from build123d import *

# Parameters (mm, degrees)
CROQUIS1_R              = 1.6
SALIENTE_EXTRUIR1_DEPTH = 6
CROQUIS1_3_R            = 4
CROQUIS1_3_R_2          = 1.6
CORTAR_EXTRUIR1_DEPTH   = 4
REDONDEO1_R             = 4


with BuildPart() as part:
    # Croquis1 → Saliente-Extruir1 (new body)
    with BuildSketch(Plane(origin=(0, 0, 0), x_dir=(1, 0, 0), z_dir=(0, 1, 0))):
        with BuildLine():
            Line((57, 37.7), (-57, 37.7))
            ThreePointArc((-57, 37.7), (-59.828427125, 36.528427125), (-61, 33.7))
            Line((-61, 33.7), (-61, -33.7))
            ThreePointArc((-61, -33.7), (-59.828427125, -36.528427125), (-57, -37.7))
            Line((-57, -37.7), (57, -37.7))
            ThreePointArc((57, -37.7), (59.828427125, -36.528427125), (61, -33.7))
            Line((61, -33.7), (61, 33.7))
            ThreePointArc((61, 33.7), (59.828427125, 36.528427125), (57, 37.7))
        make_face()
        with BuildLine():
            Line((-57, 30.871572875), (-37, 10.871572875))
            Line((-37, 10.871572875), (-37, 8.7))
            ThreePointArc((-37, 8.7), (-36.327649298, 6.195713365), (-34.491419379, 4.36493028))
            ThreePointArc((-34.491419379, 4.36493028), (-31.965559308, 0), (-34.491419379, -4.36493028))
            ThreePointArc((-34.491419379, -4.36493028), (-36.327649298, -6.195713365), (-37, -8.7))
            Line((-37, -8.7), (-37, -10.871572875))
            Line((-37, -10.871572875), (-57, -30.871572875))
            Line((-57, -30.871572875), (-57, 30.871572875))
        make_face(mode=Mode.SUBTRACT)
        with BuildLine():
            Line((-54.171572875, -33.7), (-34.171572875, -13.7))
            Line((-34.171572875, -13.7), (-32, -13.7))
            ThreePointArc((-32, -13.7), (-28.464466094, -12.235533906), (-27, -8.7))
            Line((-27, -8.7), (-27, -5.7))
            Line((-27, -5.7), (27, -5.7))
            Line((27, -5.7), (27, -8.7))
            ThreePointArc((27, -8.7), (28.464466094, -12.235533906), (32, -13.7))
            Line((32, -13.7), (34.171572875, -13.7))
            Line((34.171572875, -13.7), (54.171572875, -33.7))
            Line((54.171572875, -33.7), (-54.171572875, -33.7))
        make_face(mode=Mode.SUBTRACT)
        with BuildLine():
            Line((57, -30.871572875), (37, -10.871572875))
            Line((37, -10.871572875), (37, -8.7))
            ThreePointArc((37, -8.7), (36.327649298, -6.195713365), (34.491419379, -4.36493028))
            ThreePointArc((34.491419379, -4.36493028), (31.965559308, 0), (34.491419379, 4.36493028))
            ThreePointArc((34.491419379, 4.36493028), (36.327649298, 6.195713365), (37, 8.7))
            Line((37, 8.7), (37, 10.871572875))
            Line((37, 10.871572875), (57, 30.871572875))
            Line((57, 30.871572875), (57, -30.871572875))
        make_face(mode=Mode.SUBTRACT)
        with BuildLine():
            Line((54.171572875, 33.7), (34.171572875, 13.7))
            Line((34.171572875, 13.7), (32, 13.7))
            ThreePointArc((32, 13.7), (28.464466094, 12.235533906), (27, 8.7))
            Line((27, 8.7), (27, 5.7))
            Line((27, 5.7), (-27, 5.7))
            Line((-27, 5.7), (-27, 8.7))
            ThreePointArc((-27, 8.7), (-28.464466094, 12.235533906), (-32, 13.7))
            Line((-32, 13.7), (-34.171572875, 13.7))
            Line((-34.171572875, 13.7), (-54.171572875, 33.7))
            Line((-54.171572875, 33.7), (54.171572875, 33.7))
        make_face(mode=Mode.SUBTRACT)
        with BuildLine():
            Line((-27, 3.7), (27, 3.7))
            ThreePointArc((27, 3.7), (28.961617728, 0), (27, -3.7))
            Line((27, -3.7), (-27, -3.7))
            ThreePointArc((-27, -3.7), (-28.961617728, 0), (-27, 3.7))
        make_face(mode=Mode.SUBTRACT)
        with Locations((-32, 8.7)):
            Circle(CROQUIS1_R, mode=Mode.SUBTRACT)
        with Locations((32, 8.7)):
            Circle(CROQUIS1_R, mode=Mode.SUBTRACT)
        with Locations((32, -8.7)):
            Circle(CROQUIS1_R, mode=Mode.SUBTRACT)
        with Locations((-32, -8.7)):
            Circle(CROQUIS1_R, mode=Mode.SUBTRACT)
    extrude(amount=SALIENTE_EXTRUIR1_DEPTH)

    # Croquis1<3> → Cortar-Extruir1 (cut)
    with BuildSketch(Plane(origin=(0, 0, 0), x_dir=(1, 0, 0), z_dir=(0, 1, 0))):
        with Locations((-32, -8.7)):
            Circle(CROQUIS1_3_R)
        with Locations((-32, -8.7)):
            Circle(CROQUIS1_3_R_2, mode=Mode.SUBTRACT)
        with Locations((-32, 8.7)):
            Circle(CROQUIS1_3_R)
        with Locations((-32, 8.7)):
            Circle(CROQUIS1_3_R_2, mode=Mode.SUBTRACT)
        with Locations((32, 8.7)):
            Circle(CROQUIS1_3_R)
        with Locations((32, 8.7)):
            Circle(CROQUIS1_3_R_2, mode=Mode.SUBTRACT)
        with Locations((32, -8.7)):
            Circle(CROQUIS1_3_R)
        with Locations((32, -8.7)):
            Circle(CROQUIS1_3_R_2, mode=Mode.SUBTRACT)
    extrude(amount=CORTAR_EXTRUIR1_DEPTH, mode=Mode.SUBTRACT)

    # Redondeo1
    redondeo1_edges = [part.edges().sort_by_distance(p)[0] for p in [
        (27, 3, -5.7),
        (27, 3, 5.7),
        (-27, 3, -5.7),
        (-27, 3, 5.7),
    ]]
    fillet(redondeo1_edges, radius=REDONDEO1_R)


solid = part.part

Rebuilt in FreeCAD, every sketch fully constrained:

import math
import FreeCAD as App
import Part
import Sketcher


def edges_at(feature, points):
    """Names of the edges that pass closest to the given points."""
    edges = feature.Shape.Edges
    near = lambda p: min(range(len(edges)), key=lambda i: edges[i].distToShape(Part.Vertex(*p))[0])
    return sorted({f"Edge{near(p) + 1}" for p in points})

doc = App.newDocument("Part")
body = doc.addObject("PartDesign::Body", "Body")

# Sketch on XZ plane
sketch1 = doc.addObject("Sketcher::SketchObject", "Sketch")
body.addObject(sketch1)
sketch1.AttachmentSupport = (doc.XZ_Plane, [""])
sketch1.MapMode = "FlatFace"
sketch1.addGeometry(Part.LineSegment(App.Vector(57, -37.7, 0), App.Vector(-57, -37.7, 0)), False)
sketch1.addGeometry(Part.ArcOfCircle(Part.Circle(App.Vector(-57, -33.7, 0), App.Vector(0, 0, 1), 4), math.radians(180), math.radians(270)), False)
sketch1.addGeometry(Part.LineSegment(App.Vector(-61, -33.7, 0), App.Vector(-61, 33.7, 0)), False)
sketch1.addGeometry(Part.ArcOfCircle(Part.Circle(App.Vector(-57, 33.7, 0), App.Vector(0, 0, 1), 4), math.radians(90), math.radians(180)), False)
sketch1.addGeometry(Part.LineSegment(App.Vector(-57, 37.7, 0), App.Vector(57, 37.7, 0)), False)
sketch1.addGeometry(Part.ArcOfCircle(Part.Circle(App.Vector(57, 33.7, 0), App.Vector(0, 0, 1), 4), math.radians(0), math.radians(90)), False)
sketch1.addGeometry(Part.LineSegment(App.Vector(61, 33.7, 0), App.Vector(61, -33.7, 0)), False)
sketch1.addGeometry(Part.ArcOfCircle(Part.Circle(App.Vector(57, -33.7, 0), App.Vector(0, 0, 1), 4), math.radians(-90), math.radians(0)), False)
sketch1.addGeometry(Part.Circle(App.Vector(-32, 8.7, 0), App.Vector(0, 0, 1), 1.6), False)
sketch1.addGeometry(Part.LineSegment(App.Vector(54.171573, 33.7, 0), App.Vector(-54.171573, 33.7, 0)), False)
sketch1.addGeometry(Part.LineSegment(App.Vector(-54.171573, 33.7, 0), App.Vector(-34.171573, 13.7, 0)), False)
sketch1.addGeometry(Part.LineSegment(App.Vector(-34.171573, 13.7, 0), App.Vector(-32, 13.7, 0)), False)
sketch1.addGeometry(Part.ArcOfCircle(Part.Circle(App.Vector(-32, 8.7, 0), App.Vector(0, 0, 1), 5), math.radians(0), math.radians(90)), False)
sketch1.addGeometry(Part.LineSegment(App.Vector(-27, 8.7, 0), App.Vector(-27, 5.7, 0)), False)
sketch1.addGeometry(Part.LineSegment(App.Vector(-27, 5.7, 0), App.Vector(27, 5.7, 0)), False)
sketch1.addGeometry(Part.LineSegment(App.Vector(27, 5.7, 0), App.Vector(27, 8.7, 0)), False)
sketch1.addGeometry(Part.ArcOfCircle(Part.Circle(App.Vector(32, 8.7, 0), App.Vector(0, 0, 1), 5), math.radians(90), math.radians(180)), False)
sketch1.addGeometry(Part.LineSegment(App.Vector(32, 13.7, 0), App.Vector(34.171573, 13.7, 0)), False)
sketch1.addGeometry(Part.LineSegment(App.Vector(34.171573, 13.7, 0), App.Vector(54.171573, 33.7, 0)), False)
sketch1.addGeometry(Part.Circle(App.Vector(32, 8.7, 0), App.Vector(0, 0, 1), 1.6), False)
sketch1.addGeometry(Part.LineSegment(App.Vector(-57, 30.871573, 0), App.Vector(-57, -30.871573, 0)), False)
sketch1.addGeometry(Part.LineSegment(App.Vector(-57, -30.871573, 0), App.Vector(-37, -10.871573, 0)), False)
sketch1.addGeometry(Part.LineSegment(App.Vector(-37, -10.871573, 0), App.Vector(-37, -8.7, 0)), False)
sketch1.addGeometry(Part.ArcOfCircle(Part.Circle(App.Vector(-32, -8.7, 0), App.Vector(0, 0, 1), 5), math.radians(119.886527), math.radians(180)), False)
sketch1.addGeometry(Part.ArcOfCircle(Part.Circle(App.Vector(-37, 0, 0), App.Vector(0, 0, 1), 5.034441), math.radians(-60.113473), math.radians(60.113473)), False)
sketch1.addGeometry(Part.ArcOfCircle(Part.Circle(App.Vector(-32, 8.7, 0), App.Vector(0, 0, 1), 5), math.radians(-180), math.radians(-119.886527)), False)
sketch1.addGeometry(Part.LineSegment(App.Vector(-37, 8.7, 0), App.Vector(-37, 10.871573, 0)), False)
sketch1.addGeometry(Part.LineSegment(App.Vector(-37, 10.871573, 0), App.Vector(-57, 30.871573, 0)), False)
sketch1.addGeometry(Part.Circle(App.Vector(-32, -8.7, 0), App.Vector(0, 0, 1), 1.6), False)
sketch1.addGeometry(Part.ArcOfCircle(Part.Circle(App.Vector(-24.491342, 0, 0), App.Vector(0, 0, 1), 4.470276), math.radians(124.137886), math.radians(235.862114)), False)
sketch1.addGeometry(Part.LineSegment(App.Vector(-27, -3.7, 0), App.Vector(27, -3.7, 0)), False)
sketch1.addGeometry(Part.ArcOfCircle(Part.Circle(App.Vector(24.491342, 0, 0), App.Vector(0, 0, 1), 4.470276), math.radians(-55.862114), math.radians(55.862114)), False)
sketch1.addGeometry(Part.LineSegment(App.Vector(27, 3.7, 0), App.Vector(-27, 3.7, 0)), False)
sketch1.addGeometry(Part.LineSegment(App.Vector(57, -30.871573, 0), App.Vector(57, 30.871573, 0)), False)
sketch1.addGeometry(Part.LineSegment(App.Vector(57, 30.871573, 0), App.Vector(37, 10.871573, 0)), False)
sketch1.addGeometry(Part.LineSegment(App.Vector(37, 10.871573, 0), App.Vector(37, 8.7, 0)), False)
sketch1.addGeometry(Part.ArcOfCircle(Part.Circle(App.Vector(32, 8.7, 0), App.Vector(0, 0, 1), 5), math.radians(-60.113473), math.radians(0)), False)
sketch1.addGeometry(Part.ArcOfCircle(Part.Circle(App.Vector(37, 0, 0), App.Vector(0, 0, 1), 5.034441), math.radians(119.886527), math.radians(240.113473)), False)
sketch1.addGeometry(Part.ArcOfCircle(Part.Circle(App.Vector(32, -8.7, 0), App.Vector(0, 0, 1), 5), math.radians(0), math.radians(60.113473)), False)
sketch1.addGeometry(Part.LineSegment(App.Vector(37, -8.7, 0), App.Vector(37, -10.871573, 0)), False)
sketch1.addGeometry(Part.LineSegment(App.Vector(37, -10.871573, 0), App.Vector(57, -30.871573, 0)), False)
sketch1.addGeometry(Part.Circle(App.Vector(32, -8.7, 0), App.Vector(0, 0, 1), 1.6), False)
sketch1.addGeometry(Part.LineSegment(App.Vector(-54.171573, -33.7, 0), App.Vector(54.171573, -33.7, 0)), False)
sketch1.addGeometry(Part.LineSegment(App.Vector(54.171573, -33.7, 0), App.Vector(34.171573, -13.7, 0)), False)
sketch1.addGeometry(Part.LineSegment(App.Vector(34.171573, -13.7, 0), App.Vector(32, -13.7, 0)), False)
sketch1.addGeometry(Part.ArcOfCircle(Part.Circle(App.Vector(32, -8.7, 0), App.Vector(0, 0, 1), 5), math.radians(180), math.radians(270)), False)
sketch1.addGeometry(Part.LineSegment(App.Vector(27, -8.7, 0), App.Vector(27, -5.7, 0)), False)
sketch1.addGeometry(Part.LineSegment(App.Vector(27, -5.7, 0), App.Vector(-27, -5.7, 0)), False)
sketch1.addGeometry(Part.LineSegment(App.Vector(-27, -5.7, 0), App.Vector(-27, -8.7, 0)), False)
sketch1.addGeometry(Part.ArcOfCircle(Part.Circle(App.Vector(-32, -8.7, 0), App.Vector(0, 0, 1), 5), math.radians(-90), math.radians(0)), False)
sketch1.addGeometry(Part.LineSegment(App.Vector(-32, -13.7, 0), App.Vector(-34.171573, -13.7, 0)), False)
sketch1.addGeometry(Part.LineSegment(App.Vector(-34.171573, -13.7, 0), App.Vector(-54.171573, -33.7, 0)), False)
sketch1.addConstraint(Sketcher.Constraint("Tangent", 0, 2, 1, 2))
sketch1.addConstraint(Sketcher.Constraint("Tangent", 1, 1, 2, 1))
sketch1.addConstraint(Sketcher.Constraint("Tangent", 2, 2, 3, 2))
sketch1.addConstraint(Sketcher.Constraint("Tangent", 3, 1, 4, 1))
sketch1.addConstraint(Sketcher.Constraint("Tangent", 4, 2, 5, 2))
sketch1.addConstraint(Sketcher.Constraint("Tangent", 5, 1, 6, 1))
sketch1.addConstraint(Sketcher.Constraint("Tangent", 6, 2, 7, 2))
sketch1.addConstraint(Sketcher.Constraint("Tangent", 7, 1, 0, 1))
sketch1.addConstraint(Sketcher.Constraint("Coincident", 9, 2, 10, 1))
sketch1.addConstraint(Sketcher.Constraint("Coincident", 10, 2, 11, 1))
sketch1.addConstraint(Sketcher.Constraint("Tangent", 11, 2, 12, 2))
sketch1.addConstraint(Sketcher.Constraint("Tangent", 12, 1, 13, 1))
sketch1.addConstraint(Sketcher.Constraint("Coincident", 13, 2, 14, 1))
sketch1.addConstraint(Sketcher.Constraint("Coincident", 14, 2, 15, 1))
sketch1.addConstraint(Sketcher.Constraint("Tangent", 15, 2, 16, 2))
sketch1.addConstraint(Sketcher.Constraint("Tangent", 16, 1, 17, 1))
sketch1.addConstraint(Sketcher.Constraint("Coincident", 17, 2, 18, 1))
sketch1.addConstraint(Sketcher.Constraint("Coincident", 18, 2, 9, 1))
sketch1.addConstraint(Sketcher.Constraint("Coincident", 20, 2, 21, 1))
sketch1.addConstraint(Sketcher.Constraint("Coincident", 21, 2, 22, 1))
sketch1.addConstraint(Sketcher.Constraint("Tangent", 22, 2, 23, 2))
sketch1.addConstraint(Sketcher.Constraint("Tangent", 23, 1, 24, 1))
sketch1.addConstraint(Sketcher.Constraint("Tangent", 24, 2, 25, 2))
sketch1.addConstraint(Sketcher.Constraint("Tangent", 25, 1, 26, 1))
sketch1.addConstraint(Sketcher.Constraint("Coincident", 26, 2, 27, 1))
sketch1.addConstraint(Sketcher.Constraint("Coincident", 27, 2, 20, 1))
sketch1.addConstraint(Sketcher.Constraint("Coincident", 29, 2, 30, 1))
sketch1.addConstraint(Sketcher.Constraint("Coincident", 30, 2, 31, 1))
sketch1.addConstraint(Sketcher.Constraint("Coincident", 31, 2, 32, 1))
sketch1.addConstraint(Sketcher.Constraint("Coincident", 32, 2, 29, 1))
sketch1.addConstraint(Sketcher.Constraint("Coincident", 33, 2, 34, 1))
sketch1.addConstraint(Sketcher.Constraint("Coincident", 34, 2, 35, 1))
sketch1.addConstraint(Sketcher.Constraint("Tangent", 35, 2, 36, 2))
sketch1.addConstraint(Sketcher.Constraint("Tangent", 36, 1, 37, 1))
sketch1.addConstraint(Sketcher.Constraint("Tangent", 37, 2, 38, 2))
sketch1.addConstraint(Sketcher.Constraint("Tangent", 38, 1, 39, 1))
sketch1.addConstraint(Sketcher.Constraint("Coincident", 39, 2, 40, 1))
sketch1.addConstraint(Sketcher.Constraint("Coincident", 40, 2, 33, 1))
sketch1.addConstraint(Sketcher.Constraint("Coincident", 42, 2, 43, 1))
sketch1.addConstraint(Sketcher.Constraint("Coincident", 43, 2, 44, 1))
sketch1.addConstraint(Sketcher.Constraint("Tangent", 44, 2, 45, 2))
sketch1.addConstraint(Sketcher.Constraint("Tangent", 45, 1, 46, 1))
sketch1.addConstraint(Sketcher.Constraint("Coincident", 46, 2, 47, 1))
sketch1.addConstraint(Sketcher.Constraint("Coincident", 47, 2, 48, 1))
sketch1.addConstraint(Sketcher.Constraint("Tangent", 48, 2, 49, 2))
sketch1.addConstraint(Sketcher.Constraint("Tangent", 49, 1, 50, 1))
sketch1.addConstraint(Sketcher.Constraint("Coincident", 50, 2, 51, 1))
sketch1.addConstraint(Sketcher.Constraint("Coincident", 51, 2, 42, 1))
sketch1.addConstraint(Sketcher.Constraint("Horizontal", 0))
sketch1.addConstraint(Sketcher.Constraint("Vertical", 2))
sketch1.addConstraint(Sketcher.Constraint("Horizontal", 4))
sketch1.addConstraint(Sketcher.Constraint("Vertical", 6))
sketch1.addConstraint(Sketcher.Constraint("Horizontal", 9))
sketch1.addConstraint(Sketcher.Constraint("Horizontal", 11))
sketch1.addConstraint(Sketcher.Constraint("Vertical", 13))
sketch1.addConstraint(Sketcher.Constraint("Horizontal", 14))
sketch1.addConstraint(Sketcher.Constraint("Vertical", 15))
sketch1.addConstraint(Sketcher.Constraint("Horizontal", 17))
sketch1.addConstraint(Sketcher.Constraint("Vertical", 20))
sketch1.addConstraint(Sketcher.Constraint("Vertical", 22))
sketch1.addConstraint(Sketcher.Constraint("Vertical", 26))
sketch1.addConstraint(Sketcher.Constraint("Horizontal", 30))
sketch1.addConstraint(Sketcher.Constraint("Horizontal", 32))
sketch1.addConstraint(Sketcher.Constraint("Vertical", 33))
sketch1.addConstraint(Sketcher.Constraint("Vertical", 35))
sketch1.addConstraint(Sketcher.Constraint("Vertical", 39))
sketch1.addConstraint(Sketcher.Constraint("Horizontal", 42))
sketch1.addConstraint(Sketcher.Constraint("Horizontal", 44))
sketch1.addConstraint(Sketcher.Constraint("Vertical", 46))
sketch1.addConstraint(Sketcher.Constraint("Horizontal", 47))
sketch1.addConstraint(Sketcher.Constraint("Vertical", 48))
sketch1.addConstraint(Sketcher.Constraint("Horizontal", 50))
sketch1.addConstraint(Sketcher.Constraint("Coincident", 12, 3, 8, 3))
sketch1.addConstraint(Sketcher.Constraint("Coincident", 19, 3, 16, 3))
sketch1.addConstraint(Sketcher.Constraint("Coincident", 25, 3, 8, 3))
sketch1.addConstraint(Sketcher.Constraint("Coincident", 28, 3, 23, 3))
sketch1.addConstraint(Sketcher.Constraint("Coincident", 36, 3, 16, 3))
sketch1.addConstraint(Sketcher.Constraint("Coincident", 41, 3, 38, 3))
sketch1.addConstraint(Sketcher.Constraint("Coincident", 45, 3, 38, 3))
sketch1.addConstraint(Sketcher.Constraint("Coincident", 49, 3, 23, 3))
sketch1.addConstraint(Sketcher.Constraint("Equal", 1, 3))
sketch1.addConstraint(Sketcher.Constraint("Equal", 3, 5))
sketch1.addConstraint(Sketcher.Constraint("Equal", 5, 7))
sketch1.addConstraint(Sketcher.Constraint("Equal", 12, 16))
sketch1.addConstraint(Sketcher.Constraint("Equal", 8, 19))
sketch1.addConstraint(Sketcher.Constraint("Equal", 16, 23))
sketch1.addConstraint(Sketcher.Constraint("Equal", 23, 25))
sketch1.addConstraint(Sketcher.Constraint("Equal", 19, 28))
sketch1.addConstraint(Sketcher.Constraint("Equal", 29, 31))
sketch1.addConstraint(Sketcher.Constraint("Equal", 25, 36))
sketch1.addConstraint(Sketcher.Constraint("Equal", 24, 37))
sketch1.addConstraint(Sketcher.Constraint("Equal", 36, 38))
sketch1.addConstraint(Sketcher.Constraint("Equal", 28, 41))
sketch1.addConstraint(Sketcher.Constraint("Equal", 38, 45))
sketch1.addConstraint(Sketcher.Constraint("Equal", 45, 49))
sketch1.addConstraint(Sketcher.Constraint("Symmetric", 1, 3, 5, 3, -1, 1))
sketch1.addConstraint(Sketcher.Constraint("Symmetric", 16, 3, 23, 3, -1, 1))
sketch1.addConstraint(Sketcher.Constraint("Symmetric", 29, 3, 31, 3, -1, 1))
sketch1.addConstraint(Sketcher.Constraint("Symmetric", 8, 3, 38, 3, -1, 1))
sketch1.addConstraint(Sketcher.Constraint("Symmetric", 20, 2, 33, 2, -1, 1))
sketch1.addConstraint(Sketcher.Constraint("Symmetric", 9, 2, 42, 2, -1, 1))
sketch1.addConstraint(Sketcher.Constraint("Symmetric", 8, 3, 16, 3, -2))
sketch1.addConstraint(Sketcher.Constraint("Symmetric", 30, 2, 31, 2, -1))
sketch1.addConstraint(Sketcher.Constraint("Perpendicular", 10, 18))
sketch1.addConstraint(Sketcher.Constraint("Parallel", 18, 21))
sketch1.addConstraint(Sketcher.Constraint("Perpendicular", 21, 27))
sketch1.addConstraint(Sketcher.Constraint("Perpendicular", 27, 34))
sketch1.addConstraint(Sketcher.Constraint("Perpendicular", 34, 40))
sketch1.addConstraint(Sketcher.Constraint("Parallel", 40, 43))
sketch1.addConstraint(Sketcher.Constraint("Perpendicular", 43, 51))
sketch1.addConstraint(Sketcher.Constraint("Horizontal", 5, 1, 9, 2))
sketch1.addConstraint(Sketcher.Constraint("Horizontal", 27, 2, 33, 2))
sketch1.addConstraint(Sketcher.Constraint("Horizontal", 26, 2, 34, 2))
sketch1.addConstraint(Sketcher.Constraint("Horizontal", 21, 2, 39, 2))
sketch1.addConstraint(Sketcher.Constraint("Vertical", 3, 1, 20, 2))
sketch1.addConstraint(Sketcher.Constraint("Vertical", 24, 3, 21, 2))
sketch1.addConstraint(Sketcher.Constraint("Vertical", 13, 2, 29, 2))
sketch1.addConstraint(Sketcher.Constraint("Vertical", 18, 2, 42, 2))
sketch1.addConstraint(Sketcher.Constraint("Vertical", 10, 2, 50, 2))
sketch1.addConstraint(Sketcher.Constraint("Equal", 50, 22))
sketch1.addConstraint(Sketcher.Constraint("Equal", 15, 46))
sketch1.addConstraint(Sketcher.Constraint("Equal", 18, 21))
sketch1.addConstraint(Sketcher.Constraint("Radius", 1, 4.0))
sketch1.addConstraint(Sketcher.Constraint("Radius", 12, 5.0))
sketch1.addConstraint(Sketcher.Constraint("Diameter", 8, 3.2))
sketch1.addConstraint(Sketcher.Constraint("DistanceX", 0, 2, 0, 1, 114.0))
sketch1.addConstraint(Sketcher.Constraint("DistanceX", 14, 1, 14, 2, 54.0))
sketch1.addConstraint(Sketcher.Constraint("DistanceY", 13, 2, 13, 1, 3.0))
sketch1.addConstraint(Sketcher.Constraint("DistanceY", 2, 1, 2, 2, 67.4))
sketch1.addConstraint(Sketcher.Constraint("DistanceY", 29, 2, -1, 1, 3.7))
sketch1.addConstraint(Sketcher.Constraint("Radius", 29, 4.470276))
sketch1.addConstraint(Sketcher.Constraint("DistanceX", 9, 2, 9, 1, 108.343146))
pad1 = doc.addObject("PartDesign::Pad", "Pad")
body.addObject(pad1)
pad1.Profile = sketch1
pad1.Length = 6
pad1.Reversed = True

# Sketch on XZ plane
sketch2 = doc.addObject("Sketcher::SketchObject", "Sketch001")
body.addObject(sketch2)
sketch2.AttachmentSupport = (doc.XZ_Plane, [""])
sketch2.MapMode = "FlatFace"
sketch2.addGeometry(Part.Circle(App.Vector(-32, 8.7, 0), App.Vector(0, 0, 1), 4), False)
sketch2.addGeometry(Part.Circle(App.Vector(-32, 8.7, 0), App.Vector(0, 0, 1), 1.6), False)
sketch2.addGeometry(Part.Circle(App.Vector(-32, -8.7, 0), App.Vector(0, 0, 1), 4), False)
sketch2.addGeometry(Part.Circle(App.Vector(-32, -8.7, 0), App.Vector(0, 0, 1), 1.6), False)
sketch2.addGeometry(Part.Circle(App.Vector(32, -8.7, 0), App.Vector(0, 0, 1), 4), False)
sketch2.addGeometry(Part.Circle(App.Vector(32, -8.7, 0), App.Vector(0, 0, 1), 1.6), False)
sketch2.addGeometry(Part.Circle(App.Vector(32, 8.7, 0), App.Vector(0, 0, 1), 4), False)
sketch2.addGeometry(Part.Circle(App.Vector(32, 8.7, 0), App.Vector(0, 0, 1), 1.6), False)
sketch2.addConstraint(Sketcher.Constraint("Coincident", 1, 3, 0, 3))
sketch2.addConstraint(Sketcher.Constraint("Coincident", 3, 3, 2, 3))
sketch2.addConstraint(Sketcher.Constraint("Coincident", 5, 3, 4, 3))
sketch2.addConstraint(Sketcher.Constraint("Coincident", 7, 3, 6, 3))
sketch2.addConstraint(Sketcher.Constraint("Equal", 0, 2))
sketch2.addConstraint(Sketcher.Constraint("Equal", 1, 3))
sketch2.addConstraint(Sketcher.Constraint("Equal", 2, 4))
sketch2.addConstraint(Sketcher.Constraint("Equal", 3, 5))
sketch2.addConstraint(Sketcher.Constraint("Equal", 4, 6))
sketch2.addConstraint(Sketcher.Constraint("Equal", 5, 7))
sketch2.addConstraint(Sketcher.Constraint("Symmetric", 0, 3, 4, 3, -1, 1))
sketch2.addConstraint(Sketcher.Constraint("Symmetric", 2, 3, 6, 3, -1, 1))
sketch2.addConstraint(Sketcher.Constraint("Symmetric", 2, 3, 4, 3, -2))
sketch2.addConstraint(Sketcher.Constraint("Diameter", 0, 8.0))
sketch2.addConstraint(Sketcher.Constraint("Diameter", 1, 3.2))
sketch2.addConstraint(Sketcher.Constraint("DistanceX", 0, 3, -1, 1, 32.0))
sketch2.addConstraint(Sketcher.Constraint("DistanceY", -1, 1, 0, 3, 8.7))
pocket1 = doc.addObject("PartDesign::Pocket", "Pocket")
body.addObject(pocket1)
pocket1.Profile = sketch2
pocket1.Length = 4
doc.recompute()

fillet = doc.addObject("PartDesign::Fillet", "Fillet")
body.addObject(fillet)
fillet.Base = (pocket1, edges_at(pocket1, [
    (27, 3, -5.7),
    (27, 3, 5.7),
    (-27, 3, -5.7),
    (-27, 3, 5.7),
]))
fillet.Radius = 4

doc.recompute()
